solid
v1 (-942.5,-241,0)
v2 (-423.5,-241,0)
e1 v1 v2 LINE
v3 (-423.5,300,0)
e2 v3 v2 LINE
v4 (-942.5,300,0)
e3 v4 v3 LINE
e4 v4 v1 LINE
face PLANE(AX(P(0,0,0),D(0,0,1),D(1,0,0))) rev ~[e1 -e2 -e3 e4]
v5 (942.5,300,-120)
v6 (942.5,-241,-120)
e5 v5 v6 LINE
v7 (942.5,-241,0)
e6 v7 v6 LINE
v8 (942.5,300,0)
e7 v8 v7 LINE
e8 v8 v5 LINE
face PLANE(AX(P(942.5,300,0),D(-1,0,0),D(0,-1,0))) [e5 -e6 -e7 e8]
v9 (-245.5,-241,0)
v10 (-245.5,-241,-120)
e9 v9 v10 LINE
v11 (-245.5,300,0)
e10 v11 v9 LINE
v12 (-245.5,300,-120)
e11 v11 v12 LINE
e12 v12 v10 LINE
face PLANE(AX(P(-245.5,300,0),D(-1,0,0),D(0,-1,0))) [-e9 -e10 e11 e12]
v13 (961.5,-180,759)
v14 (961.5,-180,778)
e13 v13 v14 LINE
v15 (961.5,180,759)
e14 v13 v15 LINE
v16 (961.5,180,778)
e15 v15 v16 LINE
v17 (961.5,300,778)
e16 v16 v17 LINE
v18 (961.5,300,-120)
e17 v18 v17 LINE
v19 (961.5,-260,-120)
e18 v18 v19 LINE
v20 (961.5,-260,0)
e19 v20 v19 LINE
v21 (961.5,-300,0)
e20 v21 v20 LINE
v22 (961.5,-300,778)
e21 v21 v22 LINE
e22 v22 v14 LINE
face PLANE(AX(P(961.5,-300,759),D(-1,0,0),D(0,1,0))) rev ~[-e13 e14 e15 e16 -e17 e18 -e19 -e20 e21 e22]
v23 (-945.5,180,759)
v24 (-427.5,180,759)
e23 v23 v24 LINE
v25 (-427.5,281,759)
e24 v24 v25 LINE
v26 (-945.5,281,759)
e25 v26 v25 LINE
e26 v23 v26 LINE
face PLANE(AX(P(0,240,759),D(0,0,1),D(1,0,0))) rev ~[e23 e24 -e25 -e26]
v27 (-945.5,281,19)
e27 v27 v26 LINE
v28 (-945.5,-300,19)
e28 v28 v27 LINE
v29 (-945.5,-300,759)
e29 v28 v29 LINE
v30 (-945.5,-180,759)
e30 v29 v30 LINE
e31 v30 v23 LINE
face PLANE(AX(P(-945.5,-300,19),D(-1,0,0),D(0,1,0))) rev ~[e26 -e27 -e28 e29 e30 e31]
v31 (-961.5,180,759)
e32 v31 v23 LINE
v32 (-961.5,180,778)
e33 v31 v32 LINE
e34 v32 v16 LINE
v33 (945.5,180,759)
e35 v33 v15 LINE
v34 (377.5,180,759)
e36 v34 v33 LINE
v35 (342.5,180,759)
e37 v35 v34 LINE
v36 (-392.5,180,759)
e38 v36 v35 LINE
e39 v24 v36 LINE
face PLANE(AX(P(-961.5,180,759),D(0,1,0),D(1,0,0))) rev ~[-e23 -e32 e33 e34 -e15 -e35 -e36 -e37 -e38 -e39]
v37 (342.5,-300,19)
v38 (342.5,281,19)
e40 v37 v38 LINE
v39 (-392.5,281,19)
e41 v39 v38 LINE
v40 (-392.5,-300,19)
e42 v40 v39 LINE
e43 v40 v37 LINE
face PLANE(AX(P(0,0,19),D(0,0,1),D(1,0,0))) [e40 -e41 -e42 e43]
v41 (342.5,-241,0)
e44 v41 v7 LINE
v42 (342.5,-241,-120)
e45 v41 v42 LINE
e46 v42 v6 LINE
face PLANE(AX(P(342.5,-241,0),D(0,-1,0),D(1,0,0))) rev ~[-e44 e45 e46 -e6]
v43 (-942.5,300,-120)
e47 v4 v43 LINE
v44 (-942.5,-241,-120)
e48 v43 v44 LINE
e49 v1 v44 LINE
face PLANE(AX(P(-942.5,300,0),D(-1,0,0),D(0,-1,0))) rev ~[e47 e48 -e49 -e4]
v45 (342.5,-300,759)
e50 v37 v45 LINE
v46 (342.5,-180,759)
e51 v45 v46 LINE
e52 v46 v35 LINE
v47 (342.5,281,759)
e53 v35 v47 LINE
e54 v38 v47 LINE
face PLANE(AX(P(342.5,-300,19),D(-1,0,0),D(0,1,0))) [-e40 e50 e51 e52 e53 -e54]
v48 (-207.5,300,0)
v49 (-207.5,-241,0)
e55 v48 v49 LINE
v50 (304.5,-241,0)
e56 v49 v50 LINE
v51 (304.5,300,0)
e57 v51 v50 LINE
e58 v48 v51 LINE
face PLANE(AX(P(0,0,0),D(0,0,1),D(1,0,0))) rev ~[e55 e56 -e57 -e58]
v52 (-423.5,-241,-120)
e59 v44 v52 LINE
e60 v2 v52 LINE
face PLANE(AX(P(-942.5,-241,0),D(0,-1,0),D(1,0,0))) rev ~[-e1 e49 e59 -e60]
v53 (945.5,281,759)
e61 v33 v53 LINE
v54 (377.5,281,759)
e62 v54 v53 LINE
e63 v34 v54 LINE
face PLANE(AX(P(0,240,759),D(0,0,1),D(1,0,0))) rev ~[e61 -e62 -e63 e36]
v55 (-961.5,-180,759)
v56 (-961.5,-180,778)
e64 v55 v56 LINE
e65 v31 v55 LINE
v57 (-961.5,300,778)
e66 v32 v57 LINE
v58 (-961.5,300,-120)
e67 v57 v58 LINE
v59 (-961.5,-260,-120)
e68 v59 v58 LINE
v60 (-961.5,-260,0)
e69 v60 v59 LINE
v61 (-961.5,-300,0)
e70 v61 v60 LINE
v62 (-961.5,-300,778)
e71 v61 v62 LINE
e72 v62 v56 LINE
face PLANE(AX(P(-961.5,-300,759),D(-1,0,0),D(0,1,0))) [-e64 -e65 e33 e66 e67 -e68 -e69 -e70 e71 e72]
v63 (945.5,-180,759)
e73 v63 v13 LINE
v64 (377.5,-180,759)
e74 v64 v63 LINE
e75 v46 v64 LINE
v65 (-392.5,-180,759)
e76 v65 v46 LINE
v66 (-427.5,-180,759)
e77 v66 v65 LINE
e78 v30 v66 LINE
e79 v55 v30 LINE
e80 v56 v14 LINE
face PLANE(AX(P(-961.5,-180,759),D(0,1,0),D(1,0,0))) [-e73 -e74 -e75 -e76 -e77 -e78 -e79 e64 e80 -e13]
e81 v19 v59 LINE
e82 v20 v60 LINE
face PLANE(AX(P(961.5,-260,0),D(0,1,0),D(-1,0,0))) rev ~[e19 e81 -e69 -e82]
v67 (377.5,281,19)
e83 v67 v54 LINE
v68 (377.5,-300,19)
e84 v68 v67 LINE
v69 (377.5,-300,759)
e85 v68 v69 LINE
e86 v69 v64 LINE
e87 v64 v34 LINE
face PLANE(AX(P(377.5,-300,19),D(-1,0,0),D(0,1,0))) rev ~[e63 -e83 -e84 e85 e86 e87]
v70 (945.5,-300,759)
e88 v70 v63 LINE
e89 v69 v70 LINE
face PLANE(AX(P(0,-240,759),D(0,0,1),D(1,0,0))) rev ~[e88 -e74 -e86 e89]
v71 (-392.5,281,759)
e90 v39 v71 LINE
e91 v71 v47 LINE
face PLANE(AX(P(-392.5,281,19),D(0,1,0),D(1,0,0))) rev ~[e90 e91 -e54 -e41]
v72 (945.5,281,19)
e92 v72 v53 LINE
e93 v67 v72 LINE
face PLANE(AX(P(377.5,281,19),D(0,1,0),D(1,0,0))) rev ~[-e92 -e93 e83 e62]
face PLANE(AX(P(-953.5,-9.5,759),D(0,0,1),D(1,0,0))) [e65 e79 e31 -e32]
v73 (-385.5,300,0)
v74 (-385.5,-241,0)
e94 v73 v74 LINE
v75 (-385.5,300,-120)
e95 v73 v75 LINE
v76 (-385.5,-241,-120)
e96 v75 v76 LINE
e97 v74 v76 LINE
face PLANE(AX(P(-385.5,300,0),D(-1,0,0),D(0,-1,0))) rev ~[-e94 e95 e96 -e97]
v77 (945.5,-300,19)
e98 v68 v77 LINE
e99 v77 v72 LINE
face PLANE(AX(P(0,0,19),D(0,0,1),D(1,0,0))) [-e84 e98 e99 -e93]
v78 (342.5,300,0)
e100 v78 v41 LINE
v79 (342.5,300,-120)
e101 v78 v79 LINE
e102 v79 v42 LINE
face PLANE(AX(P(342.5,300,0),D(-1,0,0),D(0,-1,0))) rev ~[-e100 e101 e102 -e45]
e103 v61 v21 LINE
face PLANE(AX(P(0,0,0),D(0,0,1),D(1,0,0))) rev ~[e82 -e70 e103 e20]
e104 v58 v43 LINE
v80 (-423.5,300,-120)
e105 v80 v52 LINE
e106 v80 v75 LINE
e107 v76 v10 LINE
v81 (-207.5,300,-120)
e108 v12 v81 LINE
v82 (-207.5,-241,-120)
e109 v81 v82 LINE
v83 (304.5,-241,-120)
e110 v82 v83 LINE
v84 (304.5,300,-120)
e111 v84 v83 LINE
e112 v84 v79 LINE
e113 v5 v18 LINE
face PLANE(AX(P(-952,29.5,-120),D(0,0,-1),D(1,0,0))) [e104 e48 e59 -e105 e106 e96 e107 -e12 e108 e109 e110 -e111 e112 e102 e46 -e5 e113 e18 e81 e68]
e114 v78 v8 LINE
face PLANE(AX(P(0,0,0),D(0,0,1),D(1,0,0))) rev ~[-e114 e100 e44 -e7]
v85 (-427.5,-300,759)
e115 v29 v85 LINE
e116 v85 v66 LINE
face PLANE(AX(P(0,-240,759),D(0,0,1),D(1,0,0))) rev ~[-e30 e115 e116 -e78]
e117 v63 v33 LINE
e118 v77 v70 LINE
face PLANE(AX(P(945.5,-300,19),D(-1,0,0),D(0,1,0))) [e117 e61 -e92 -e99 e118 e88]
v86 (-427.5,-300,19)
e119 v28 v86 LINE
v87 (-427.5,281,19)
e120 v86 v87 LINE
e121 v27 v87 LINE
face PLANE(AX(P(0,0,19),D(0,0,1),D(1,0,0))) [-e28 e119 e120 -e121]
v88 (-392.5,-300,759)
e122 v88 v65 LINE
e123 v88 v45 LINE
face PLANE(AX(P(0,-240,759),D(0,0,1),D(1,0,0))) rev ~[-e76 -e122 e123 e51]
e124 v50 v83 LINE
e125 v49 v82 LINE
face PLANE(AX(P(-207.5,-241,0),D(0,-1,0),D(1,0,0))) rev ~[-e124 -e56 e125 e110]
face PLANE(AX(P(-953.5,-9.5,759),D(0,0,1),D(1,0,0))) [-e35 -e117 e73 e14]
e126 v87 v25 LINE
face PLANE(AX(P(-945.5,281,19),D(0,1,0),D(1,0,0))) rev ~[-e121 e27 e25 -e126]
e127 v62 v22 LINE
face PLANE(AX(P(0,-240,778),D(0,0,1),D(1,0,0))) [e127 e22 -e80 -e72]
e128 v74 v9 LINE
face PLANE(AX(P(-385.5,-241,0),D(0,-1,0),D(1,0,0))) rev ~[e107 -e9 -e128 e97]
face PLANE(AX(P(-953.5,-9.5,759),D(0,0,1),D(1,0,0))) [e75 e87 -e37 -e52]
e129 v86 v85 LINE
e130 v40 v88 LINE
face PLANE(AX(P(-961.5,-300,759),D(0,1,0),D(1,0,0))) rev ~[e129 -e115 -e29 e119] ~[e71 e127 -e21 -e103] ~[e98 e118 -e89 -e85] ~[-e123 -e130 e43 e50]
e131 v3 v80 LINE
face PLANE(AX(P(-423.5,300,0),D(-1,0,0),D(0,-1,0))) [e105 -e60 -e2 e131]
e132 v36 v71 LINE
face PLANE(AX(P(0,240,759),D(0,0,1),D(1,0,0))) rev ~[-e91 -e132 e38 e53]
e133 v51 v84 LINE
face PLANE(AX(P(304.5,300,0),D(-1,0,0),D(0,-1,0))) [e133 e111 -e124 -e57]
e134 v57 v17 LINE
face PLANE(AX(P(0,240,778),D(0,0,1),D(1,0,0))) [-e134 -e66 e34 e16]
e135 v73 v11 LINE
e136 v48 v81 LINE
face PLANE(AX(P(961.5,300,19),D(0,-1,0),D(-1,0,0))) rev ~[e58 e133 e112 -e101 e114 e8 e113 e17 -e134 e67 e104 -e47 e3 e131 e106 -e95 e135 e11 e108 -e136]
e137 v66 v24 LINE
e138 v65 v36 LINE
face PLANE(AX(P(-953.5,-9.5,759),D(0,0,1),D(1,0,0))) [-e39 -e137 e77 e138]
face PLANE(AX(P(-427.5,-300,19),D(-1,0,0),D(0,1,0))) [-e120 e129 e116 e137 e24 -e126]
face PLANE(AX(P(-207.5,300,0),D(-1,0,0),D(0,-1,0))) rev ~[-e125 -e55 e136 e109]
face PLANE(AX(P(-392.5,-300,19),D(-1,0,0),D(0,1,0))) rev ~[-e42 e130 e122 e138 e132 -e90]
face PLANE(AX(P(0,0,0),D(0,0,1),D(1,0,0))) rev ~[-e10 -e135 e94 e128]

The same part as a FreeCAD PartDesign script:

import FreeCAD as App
import Part
import Sketcher

V = App.Vector

doc = App.newDocument("Part")
body = doc.addObject("PartDesign::Body", "Body")

sketch1 = body.newObject("Sketcher::SketchObject", "Sketch")
sketch1.AttachmentSupport = (doc.getObject("XY_Plane"), [""])
sketch1.MapMode = "FlatFace"
sketch1.addGeometry(Part.LineSegment(V(-962, 300, 0), V(-962, -300, 0)), False)
sketch1.addGeometry(Part.LineSegment(V(-962, -300, 0), V(962, -300, 0)), False)
sketch1.addGeometry(Part.LineSegment(V(962, -300, 0), V(962, 300, 0)), False)
sketch1.addGeometry(Part.LineSegment(V(962, 300, 0), V(-962, 300, 0)), False)
sketch1.addConstraint(Sketcher.Constraint("Coincident", 0, 2, 1, 1))
sketch1.addConstraint(Sketcher.Constraint("Coincident", 1, 2, 2, 1))
sketch1.addConstraint(Sketcher.Constraint("Coincident", 2, 2, 3, 1))
sketch1.addConstraint(Sketcher.Constraint("Coincident", 3, 2, 0, 1))
sketch1.addConstraint(Sketcher.Constraint("Vertical", 0))
sketch1.addConstraint(Sketcher.Constraint("Horizontal", 1))
sketch1.addConstraint(Sketcher.Constraint("Vertical", 2))
sketch1.addConstraint(Sketcher.Constraint("Horizontal", 3))
sketch1.addConstraint(Sketcher.Constraint("Symmetric", 0, 2, 2, 2, -1, 1))
sketch1.addConstraint(Sketcher.Constraint("DistanceX", 1, 1, 1, 2, 1923.0))
sketch1.addConstraint(Sketcher.Constraint("DistanceY", 0, 2, 0, 1, 600.0))
pad1 = body.newObject("PartDesign::Pad", "Pad")
pad1.Profile = sketch1
pad1.Length = 19

sketch2 = body.newObject("Sketcher::SketchObject", "Sketch001")
sketch2.AttachmentSupport = (doc.getObject("XY_Plane"), [""])
sketch2.MapMode = "FlatFace"
sketch2.addGeometry(Part.LineSegment(V(-962, 300, 0), V(-942, 300, 0)), False)
sketch2.addGeometry(Part.LineSegment(V(-942, 300, 0), V(-942, -241, 0)), False)
sketch2.addGeometry(Part.LineSegment(V(-942, -241, 0), V(-424, -241, 0)), False)
sketch2.addGeometry(Part.LineSegment(V(-424, -241, 0), V(-424, 300, 0)), False)
sketch2.addGeometry(Part.LineSegment(V(-424, 300, 0), V(-386, 300, 0)), False)
sketch2.addGeometry(Part.LineSegment(V(-386, 300, 0), V(-386, -241, 0)), False)
sketch2.addGeometry(Part.LineSegment(V(-386, -241, 0), V(-246, -241, 0)), False)
sketch2.addGeometry(Part.LineSegment(V(-246, -241, 0), V(-246, 300, 0)), False)
sketch2.addGeometry(Part.LineSegment(V(-246, 300, 0), V(-208, 300, 0)), False)
sketch2.addGeometry(Part.LineSegment(V(-208, 300, 0), V(-208, -241, 0)), False)
sketch2.addGeometry(Part.LineSegment(V(-208, -241, 0), V(304, -241, 0)), False)
sketch2.addGeometry(Part.LineSegment(V(304, -241, 0), V(304, 300, 0)), False)
sketch2.addGeometry(Part.LineSegment(V(304, 300, 0), V(342, 300, 0)), False)
sketch2.addGeometry(Part.LineSegment(V(342, 300, 0), V(342, -241, 0)), False)
sketch2.addGeometry(Part.LineSegment(V(342, -241, 0), V(942, -241, 0)), False)
sketch2.addGeometry(Part.LineSegment(V(942, -241, 0), V(942, 300, 0)), False)
sketch2.addGeometry(Part.LineSegment(V(942, 300, 0), V(962, 300, 0)), False)
sketch2.addGeometry(Part.LineSegment(V(962, 300, 0), V(962, -260, 0)), False)
sketch2.addGeometry(Part.LineSegment(V(962, -260, 0), V(-962, -260, 0)), False)
sketch2.addGeometry(Part.LineSegment(V(-962, -260, 0), V(-962, 300, 0)), False)
sketch2.addConstraint(Sketcher.Constraint("Coincident", 0, 2, 1, 1))
sketch2.addConstraint(Sketcher.Constraint("Coincident", 1, 2, 2, 1))
sketch2.addConstraint(Sketcher.Constraint("Coincident", 2, 2, 3, 1))
sketch2.addConstraint(Sketcher.Constraint("Coincident", 3, 2, 4, 1))
sketch2.addConstraint(Sketcher.Constraint("Coincident", 4, 2, 5, 1))
sketch2.addConstraint(Sketcher.Constraint("Coincident", 5, 2, 6, 1))
sketch2.addConstraint(Sketcher.Constraint("Coincident", 6, 2, 7, 1))
sketch2.addConstraint(Sketcher.Constraint("Coincident", 7, 2, 8, 1))
sketch2.addConstraint(Sketcher.Constraint("Coincident", 8, 2, 9, 1))
sketch2.addConstraint(Sketcher.Constraint("Coincident", 9, 2, 10, 1))
sketch2.addConstraint(Sketcher.Constraint("Coincident", 10, 2, 11, 1))
sketch2.addConstraint(Sketcher.Constraint("Coincident", 11, 2, 12, 1))
sketch2.addConstraint(Sketcher.Constraint("Coincident", 12, 2, 13, 1))
sketch2.addConstraint(Sketcher.Constraint("Coincident", 13, 2, 14, 1))
sketch2.addConstraint(Sketcher.Constraint("Coincident", 14, 2, 15, 1))
sketch2.addConstraint(Sketcher.Constraint("Coincident", 15, 2, 16, 1))
sketch2.addConstraint(Sketcher.Constraint("Coincident", 16, 2, 17, 1))
sketch2.addConstraint(Sketcher.Constraint("Coincident", 17, 2, 18, 1))
sketch2.addConstraint(Sketcher.Constraint("Coincident", 18, 2, 19, 1))
sketch2.addConstraint(Sketcher.Constraint("Coincident", 19, 2, 0, 1))
sketch2.addConstraint(Sketcher.Constraint("Horizontal", 0))
sketch2.addConstraint(Sketcher.Constraint("Vertical", 1))
sketch2.addConstraint(Sketcher.Constraint("Horizontal", 2))
sketch2.addConstraint(Sketcher.Constraint("Vertical", 3))
sketch2.addConstraint(Sketcher.Constraint("Horizontal", 4))
sketch2.addConstraint(Sketcher.Constraint("Vertical", 5))
sketch2.addConstraint(Sketcher.Constraint("Horizontal", 6))
sketch2.addConstraint(Sketcher.Constraint("Vertical", 7))
sketch2.addConstraint(Sketcher.Constraint("Horizontal", 8))
sketch2.addConstraint(Sketcher.Constraint("Vertical", 9))
sketch2.addConstraint(Sketcher.Constraint("Horizontal", 10))
sketch2.addConstraint(Sketcher.Constraint("Vertical", 11))
sketch2.addConstraint(Sketcher.Constraint("Horizontal", 12))
sketch2.addConstraint(Sketcher.Constraint("Vertical", 13))
sketch2.addConstraint(Sketcher.Constraint("Horizontal", 14))
sketch2.addConstraint(Sketcher.Constraint("Vertical", 15))
sketch2.addConstraint(Sketcher.Constraint("Horizontal", 16))
sketch2.addConstraint(Sketcher.Constraint("Vertical", 17))
sketch2.addConstraint(Sketcher.Constraint("Horizontal", 18))
sketch2.addConstraint(Sketcher.Constraint("Vertical", 19))
sketch2.addConstraint(Sketcher.Constraint("Symmetric", 1, 2, 14, 2, -2))
sketch2.addConstraint(Sketcher.Constraint("Symmetric", 16, 2, 19, 2, -2))
sketch2.addConstraint(Sketcher.Constraint("Horizontal", 0, 2, 3, 2))
sketch2.addConstraint(Sketcher.Constraint("Horizontal", 2, 2, 5, 2))
sketch2.addConstraint(Sketcher.Constraint("Horizontal", 4, 2, 7, 2))
sketch2.addConstraint(Sketcher.Constraint("Horizontal", 6, 2, 9, 2))
sketch2.addConstraint(Sketcher.Constraint("Horizontal", 8, 2, 11, 2))
sketch2.addConstraint(Sketcher.Constraint("Equal", 4, 8))
sketch2.addConstraint(Sketcher.Constraint("Equal", 8, 12))
sketch2.addConstraint(Sketcher.Constraint("DistanceX", 0, 1, 0, 2, 19.0))
sketch2.addConstraint(Sketcher.Constraint("DistanceX", 2, 1, 2, 2, 519.0))
sketch2.addConstraint(Sketcher.Constraint("DistanceX", 4, 1, 4, 2, 38.0))
sketch2.addConstraint(Sketcher.Constraint("DistanceX", 6, 1, 6, 2, 140.0))
sketch2.addConstraint(Sketcher.Constraint("DistanceX", 10, 1, 10, 2, 512.0))
sketch2.addConstraint(Sketcher.Constraint("DistanceX", 14, 1, 14, 2, 600.0))
sketch2.addConstraint(Sketcher.Constraint("DistanceY", 1, 2, 1, 1, 541.0))
sketch2.addConstraint(Sketcher.Constraint("DistanceY", 17, 2, 17, 1, 560.0))
sketch2.addConstraint(Sketcher.Constraint("DistanceY", -1, 1, 0, 2, 300.0))
pad2 = body.newObject("PartDesign::Pad", "Pad001")
pad2.Profile = sketch2
pad2.Length = 120
pad2.Reversed = True

sketch3 = body.newObject("Sketcher::SketchObject", "Sketch002")
sketch3.AttachmentSupport = (doc.getObject("XY_Plane"), [""])
sketch3.MapMode = "FlatFace"
sketch3.AttachmentOffset = App.Placement(V(0, 0, 19), App.Rotation())
sketch3.addGeometry(Part.LineSegment(V(-962, -300, 0), V(-946, -300, 0)), False)
sketch3.addGeometry(Part.LineSegment(V(-946, -300, 0), V(-946, 281, 0)), False)
sketch3.addGeometry(Part.LineSegment(V(-946, 281, 0), V(-428, 281, 0)), False)
sketch3.addGeometry(Part.LineSegment(V(-428, 281, 0), V(-428, -300, 0)), False)
sketch3.addGeometry(Part.LineSegment(V(-428, -300, 0), V(-392, -300, 0)), False)
sketch3.addGeometry(Part.LineSegment(V(-392, -300, 0), V(-392, 281, 0)), False)
sketch3.addGeometry(Part.LineSegment(V(-392, 281, 0), V(342, 281, 0)), False)
sketch3.addGeometry(Part.LineSegment(V(342, 281, 0), V(342, -300, 0)), False)
sketch3.addGeometry(Part.LineSegment(V(342, -300, 0), V(378, -300, 0)), False)
sketch3.addGeometry(Part.LineSegment(V(378, -300, 0), V(378, 281, 0)), False)
sketch3.addGeometry(Part.LineSegment(V(378, 281, 0), V(946, 281, 0)), False)
sketch3.addGeometry(Part.LineSegment(V(946, 281, 0), V(946, -300, 0)), False)
sketch3.addGeometry(Part.LineSegment(V(946, -300, 0), V(962, -300, 0)), False)
sketch3.addGeometry(Part.LineSegment(V(962, -300, 0), V(962, 300, 0)), False)
sketch3.addGeometry(Part.LineSegment(V(962, 300, 0), V(-962, 300, 0)), False)
sketch3.addGeometry(Part.LineSegment(V(-962, 300, 0), V(-962, -300, 0)), False)
sketch3.addConstraint(Sketcher.Constraint("Coincident", 0, 2, 1, 1))
sketch3.addConstraint(Sketcher.Constraint("Coincident", 1, 2, 2, 1))
sketch3.addConstraint(Sketcher.Constraint("Coincident", 2, 2, 3, 1))
sketch3.addConstraint(Sketcher.Constraint("Coincident", 3, 2, 4, 1))
sketch3.addConstraint(Sketcher.Constraint("Coincident", 4, 2, 5, 1))
sketch3.addConstraint(Sketcher.Constraint("Coincident", 5, 2, 6, 1))
sketch3.addConstraint(Sketcher.Constraint("Coincident", 6, 2, 7, 1))
sketch3.addConstraint(Sketcher.Constraint("Coincident", 7, 2, 8, 1))
sketch3.addConstraint(Sketcher.Constraint("Coincident", 8, 2, 9, 1))
sketch3.addConstraint(Sketcher.Constraint("Coincident", 9, 2, 10, 1))
sketch3.addConstraint(Sketcher.Constraint("Coincident", 10, 2, 11, 1))
sketch3.addConstraint(Sketcher.Constraint("Coincident", 11, 2, 12, 1))
sketch3.addConstraint(Sketcher.Constraint("Coincident", 12, 2, 13, 1))
sketch3.addConstraint(Sketcher.Constraint("Coincident", 13, 2, 14, 1))
sketch3.addConstraint(Sketcher.Constraint("Coincident", 14, 2, 15, 1))
sketch3.addConstraint(Sketcher.Constraint("Coincident", 15, 2, 0, 1))
sketch3.addConstraint(Sketcher.Constraint("Horizontal", 0))
sketch3.addConstraint(Sketcher.Constraint("Vertical", 1))
sketch3.addConstraint(Sketcher.Constraint("Horizontal", 2))
sketch3.addConstraint(Sketcher.Constraint("Vertical", 3))
sketch3.addConstraint(Sketcher.Constraint("Horizontal", 4))
sketch3.addConstraint(Sketcher.Constraint("Vertical", 5))
sketch3.addConstraint(Sketcher.Constraint("Horizontal", 6))
sketch3.addConstraint(Sketcher.Constraint("Vertical", 7))
sketch3.addConstraint(Sketcher.Constraint("Horizontal", 8))
sketch3.addConstraint(Sketcher.Constraint("Vertical", 9))
sketch3.addConstraint(Sketcher.Constraint("Horizontal", 10))
sketch3.addConstraint(Sketcher.Constraint("Vertical", 11))
sketch3.addConstraint(Sketcher.Constraint("Horizontal", 12))
sketch3.addConstraint(Sketcher.Constraint("Vertical", 13))
sketch3.addConstraint(Sketcher.Constraint("Horizontal", 14))
sketch3.addConstraint(Sketcher.Constraint("Vertical", 15))
sketch3.addConstraint(Sketcher.Constraint("Symmetric", 12, 2, 14, 2, -1, 1))
sketch3.addConstraint(Sketcher.Constraint("Symmetric", 1, 2, 10, 2, -2))
sketch3.addConstraint(Sketcher.Constraint("Horizontal", 0, 2, 3, 2))
sketch3.addConstraint(Sketcher.Constraint("Horizontal", 2, 2, 5, 2))
sketch3.addConstraint(Sketcher.Constraint("Horizontal", 4, 2, 7, 2))
sketch3.addConstraint(Sketcher.Constraint("Horizontal", 8, 2, 11, 2))
sketch3.addConstraint(Sketcher.Constraint("Equal", 4, 8))
sketch3.addConstraint(Sketcher.Constraint("DistanceX", 0, 1, 0, 2, 16.0))
sketch3.addConstraint(Sketcher.Constraint("DistanceX", 2, 1, 2, 2, 518.0))
sketch3.addConstraint(Sketcher.Constraint("DistanceX", 4, 1, 4, 2, 35.0))
sketch3.addConstraint(Sketcher.Constraint("DistanceX", 6, 1, 6, 2, 735.0))
sketch3.addConstraint(Sketcher.Constraint("DistanceX", 10, 1, 10, 2, 568.0))
sketch3.addConstraint(Sketcher.Constraint("DistanceY", 1, 1, 1, 2, 581.0))
sketch3.addConstraint(Sketcher.Constraint("DistanceY", 13, 1, 13, 2, 600.0))
pad3 = body.newObject("PartDesign::Pad", "Pad002")
pad3.Profile = sketch3
pad3.Length = 740

sketch4 = body.newObject("Sketcher::SketchObject", "Sketch003")
sketch4.AttachmentSupport = (doc.getObject("XY_Plane"), [""])
sketch4.MapMode = "FlatFace"
sketch4.AttachmentOffset = App.Placement(V(0, 0, 759), App.Rotation())
sketch4.addGeometry(Part.LineSegment(V(-962, -180, 0), V(-962, -300, 0)), False)
sketch4.addGeometry(Part.LineSegment(V(-962, -300, 0), V(962, -300, 0)), False)
sketch4.addGeometry(Part.LineSegment(V(962, -300, 0), V(962, -180, 0)), False)
sketch4.addGeometry(Part.LineSegment(V(962, -180, 0), V(-962, -180, 0)), False)
sketch4.addGeometry(Part.LineSegment(V(-962, 300, 0), V(-962, 180, 0)), False)
sketch4.addGeometry(Part.LineSegment(V(-962, 180, 0), V(962, 180, 0)), False)
sketch4.addGeometry(Part.LineSegment(V(962, 180, 0), V(962, 300, 0)), False)
sketch4.addGeometry(Part.LineSegment(V(962, 300, 0), V(-962, 300, 0)), False)
sketch4.addConstraint(Sketcher.Constraint("Coincident", 0, 2, 1, 1))
sketch4.addConstraint(Sketcher.Constraint("Coincident", 1, 2, 2, 1))
sketch4.addConstraint(Sketcher.Constraint("Coincident", 2, 2, 3, 1))
sketch4.addConstraint(Sketcher.Constraint("Coincident", 3, 2, 0, 1))
sketch4.addConstraint(Sketcher.Constraint("Coincident", 4, 2, 5, 1))
sketch4.addConstraint(Sketcher.Constraint("Coincident", 5, 2, 6, 1))
sketch4.addConstraint(Sketcher.Constraint("Coincident", 6, 2, 7, 1))
sketch4.addConstraint(Sketcher.Constraint("Coincident", 7, 2, 4, 1))
sketch4.addConstraint(Sketcher.Constraint("Vertical", 0))
sketch4.addConstraint(Sketcher.Constraint("Horizontal", 1))
sketch4.addConstraint(Sketcher.Constraint("Vertical", 2))
sketch4.addConstraint(Sketcher.Constraint("Horizontal", 3))
sketch4.addConstraint(Sketcher.Constraint("Vertical", 4))
sketch4.addConstraint(Sketcher.Constraint("Horizontal", 5))
sketch4.addConstraint(Sketcher.Constraint("Vertical", 6))
sketch4.addConstraint(Sketcher.Constraint("Horizontal", 7))
sketch4.addConstraint(Sketcher.Constraint("Symmetric", 2, 2, 4, 2, -1, 1))
sketch4.addConstraint(Sketcher.Constraint("Symmetric", 0, 2, 6, 2, -1, 1))
sketch4.addConstraint(Sketcher.Constraint("Vertical", 3, 2, 4, 2))
sketch4.addConstraint(Sketcher.Constraint("DistanceX", 1, 1, 1, 2, 1923.0))
sketch4.addConstraint(Sketcher.Constraint("DistanceY", 0, 2, 0, 1, 120.0))
sketch4.addConstraint(Sketcher.Constraint("DistanceY", 0, 2, -1, 1, 300.0))
pad4 = body.newObject("PartDesign::Pad", "Pad003")
pad4.Profile = sketch4
pad4.Length = 19

doc.recompute()
